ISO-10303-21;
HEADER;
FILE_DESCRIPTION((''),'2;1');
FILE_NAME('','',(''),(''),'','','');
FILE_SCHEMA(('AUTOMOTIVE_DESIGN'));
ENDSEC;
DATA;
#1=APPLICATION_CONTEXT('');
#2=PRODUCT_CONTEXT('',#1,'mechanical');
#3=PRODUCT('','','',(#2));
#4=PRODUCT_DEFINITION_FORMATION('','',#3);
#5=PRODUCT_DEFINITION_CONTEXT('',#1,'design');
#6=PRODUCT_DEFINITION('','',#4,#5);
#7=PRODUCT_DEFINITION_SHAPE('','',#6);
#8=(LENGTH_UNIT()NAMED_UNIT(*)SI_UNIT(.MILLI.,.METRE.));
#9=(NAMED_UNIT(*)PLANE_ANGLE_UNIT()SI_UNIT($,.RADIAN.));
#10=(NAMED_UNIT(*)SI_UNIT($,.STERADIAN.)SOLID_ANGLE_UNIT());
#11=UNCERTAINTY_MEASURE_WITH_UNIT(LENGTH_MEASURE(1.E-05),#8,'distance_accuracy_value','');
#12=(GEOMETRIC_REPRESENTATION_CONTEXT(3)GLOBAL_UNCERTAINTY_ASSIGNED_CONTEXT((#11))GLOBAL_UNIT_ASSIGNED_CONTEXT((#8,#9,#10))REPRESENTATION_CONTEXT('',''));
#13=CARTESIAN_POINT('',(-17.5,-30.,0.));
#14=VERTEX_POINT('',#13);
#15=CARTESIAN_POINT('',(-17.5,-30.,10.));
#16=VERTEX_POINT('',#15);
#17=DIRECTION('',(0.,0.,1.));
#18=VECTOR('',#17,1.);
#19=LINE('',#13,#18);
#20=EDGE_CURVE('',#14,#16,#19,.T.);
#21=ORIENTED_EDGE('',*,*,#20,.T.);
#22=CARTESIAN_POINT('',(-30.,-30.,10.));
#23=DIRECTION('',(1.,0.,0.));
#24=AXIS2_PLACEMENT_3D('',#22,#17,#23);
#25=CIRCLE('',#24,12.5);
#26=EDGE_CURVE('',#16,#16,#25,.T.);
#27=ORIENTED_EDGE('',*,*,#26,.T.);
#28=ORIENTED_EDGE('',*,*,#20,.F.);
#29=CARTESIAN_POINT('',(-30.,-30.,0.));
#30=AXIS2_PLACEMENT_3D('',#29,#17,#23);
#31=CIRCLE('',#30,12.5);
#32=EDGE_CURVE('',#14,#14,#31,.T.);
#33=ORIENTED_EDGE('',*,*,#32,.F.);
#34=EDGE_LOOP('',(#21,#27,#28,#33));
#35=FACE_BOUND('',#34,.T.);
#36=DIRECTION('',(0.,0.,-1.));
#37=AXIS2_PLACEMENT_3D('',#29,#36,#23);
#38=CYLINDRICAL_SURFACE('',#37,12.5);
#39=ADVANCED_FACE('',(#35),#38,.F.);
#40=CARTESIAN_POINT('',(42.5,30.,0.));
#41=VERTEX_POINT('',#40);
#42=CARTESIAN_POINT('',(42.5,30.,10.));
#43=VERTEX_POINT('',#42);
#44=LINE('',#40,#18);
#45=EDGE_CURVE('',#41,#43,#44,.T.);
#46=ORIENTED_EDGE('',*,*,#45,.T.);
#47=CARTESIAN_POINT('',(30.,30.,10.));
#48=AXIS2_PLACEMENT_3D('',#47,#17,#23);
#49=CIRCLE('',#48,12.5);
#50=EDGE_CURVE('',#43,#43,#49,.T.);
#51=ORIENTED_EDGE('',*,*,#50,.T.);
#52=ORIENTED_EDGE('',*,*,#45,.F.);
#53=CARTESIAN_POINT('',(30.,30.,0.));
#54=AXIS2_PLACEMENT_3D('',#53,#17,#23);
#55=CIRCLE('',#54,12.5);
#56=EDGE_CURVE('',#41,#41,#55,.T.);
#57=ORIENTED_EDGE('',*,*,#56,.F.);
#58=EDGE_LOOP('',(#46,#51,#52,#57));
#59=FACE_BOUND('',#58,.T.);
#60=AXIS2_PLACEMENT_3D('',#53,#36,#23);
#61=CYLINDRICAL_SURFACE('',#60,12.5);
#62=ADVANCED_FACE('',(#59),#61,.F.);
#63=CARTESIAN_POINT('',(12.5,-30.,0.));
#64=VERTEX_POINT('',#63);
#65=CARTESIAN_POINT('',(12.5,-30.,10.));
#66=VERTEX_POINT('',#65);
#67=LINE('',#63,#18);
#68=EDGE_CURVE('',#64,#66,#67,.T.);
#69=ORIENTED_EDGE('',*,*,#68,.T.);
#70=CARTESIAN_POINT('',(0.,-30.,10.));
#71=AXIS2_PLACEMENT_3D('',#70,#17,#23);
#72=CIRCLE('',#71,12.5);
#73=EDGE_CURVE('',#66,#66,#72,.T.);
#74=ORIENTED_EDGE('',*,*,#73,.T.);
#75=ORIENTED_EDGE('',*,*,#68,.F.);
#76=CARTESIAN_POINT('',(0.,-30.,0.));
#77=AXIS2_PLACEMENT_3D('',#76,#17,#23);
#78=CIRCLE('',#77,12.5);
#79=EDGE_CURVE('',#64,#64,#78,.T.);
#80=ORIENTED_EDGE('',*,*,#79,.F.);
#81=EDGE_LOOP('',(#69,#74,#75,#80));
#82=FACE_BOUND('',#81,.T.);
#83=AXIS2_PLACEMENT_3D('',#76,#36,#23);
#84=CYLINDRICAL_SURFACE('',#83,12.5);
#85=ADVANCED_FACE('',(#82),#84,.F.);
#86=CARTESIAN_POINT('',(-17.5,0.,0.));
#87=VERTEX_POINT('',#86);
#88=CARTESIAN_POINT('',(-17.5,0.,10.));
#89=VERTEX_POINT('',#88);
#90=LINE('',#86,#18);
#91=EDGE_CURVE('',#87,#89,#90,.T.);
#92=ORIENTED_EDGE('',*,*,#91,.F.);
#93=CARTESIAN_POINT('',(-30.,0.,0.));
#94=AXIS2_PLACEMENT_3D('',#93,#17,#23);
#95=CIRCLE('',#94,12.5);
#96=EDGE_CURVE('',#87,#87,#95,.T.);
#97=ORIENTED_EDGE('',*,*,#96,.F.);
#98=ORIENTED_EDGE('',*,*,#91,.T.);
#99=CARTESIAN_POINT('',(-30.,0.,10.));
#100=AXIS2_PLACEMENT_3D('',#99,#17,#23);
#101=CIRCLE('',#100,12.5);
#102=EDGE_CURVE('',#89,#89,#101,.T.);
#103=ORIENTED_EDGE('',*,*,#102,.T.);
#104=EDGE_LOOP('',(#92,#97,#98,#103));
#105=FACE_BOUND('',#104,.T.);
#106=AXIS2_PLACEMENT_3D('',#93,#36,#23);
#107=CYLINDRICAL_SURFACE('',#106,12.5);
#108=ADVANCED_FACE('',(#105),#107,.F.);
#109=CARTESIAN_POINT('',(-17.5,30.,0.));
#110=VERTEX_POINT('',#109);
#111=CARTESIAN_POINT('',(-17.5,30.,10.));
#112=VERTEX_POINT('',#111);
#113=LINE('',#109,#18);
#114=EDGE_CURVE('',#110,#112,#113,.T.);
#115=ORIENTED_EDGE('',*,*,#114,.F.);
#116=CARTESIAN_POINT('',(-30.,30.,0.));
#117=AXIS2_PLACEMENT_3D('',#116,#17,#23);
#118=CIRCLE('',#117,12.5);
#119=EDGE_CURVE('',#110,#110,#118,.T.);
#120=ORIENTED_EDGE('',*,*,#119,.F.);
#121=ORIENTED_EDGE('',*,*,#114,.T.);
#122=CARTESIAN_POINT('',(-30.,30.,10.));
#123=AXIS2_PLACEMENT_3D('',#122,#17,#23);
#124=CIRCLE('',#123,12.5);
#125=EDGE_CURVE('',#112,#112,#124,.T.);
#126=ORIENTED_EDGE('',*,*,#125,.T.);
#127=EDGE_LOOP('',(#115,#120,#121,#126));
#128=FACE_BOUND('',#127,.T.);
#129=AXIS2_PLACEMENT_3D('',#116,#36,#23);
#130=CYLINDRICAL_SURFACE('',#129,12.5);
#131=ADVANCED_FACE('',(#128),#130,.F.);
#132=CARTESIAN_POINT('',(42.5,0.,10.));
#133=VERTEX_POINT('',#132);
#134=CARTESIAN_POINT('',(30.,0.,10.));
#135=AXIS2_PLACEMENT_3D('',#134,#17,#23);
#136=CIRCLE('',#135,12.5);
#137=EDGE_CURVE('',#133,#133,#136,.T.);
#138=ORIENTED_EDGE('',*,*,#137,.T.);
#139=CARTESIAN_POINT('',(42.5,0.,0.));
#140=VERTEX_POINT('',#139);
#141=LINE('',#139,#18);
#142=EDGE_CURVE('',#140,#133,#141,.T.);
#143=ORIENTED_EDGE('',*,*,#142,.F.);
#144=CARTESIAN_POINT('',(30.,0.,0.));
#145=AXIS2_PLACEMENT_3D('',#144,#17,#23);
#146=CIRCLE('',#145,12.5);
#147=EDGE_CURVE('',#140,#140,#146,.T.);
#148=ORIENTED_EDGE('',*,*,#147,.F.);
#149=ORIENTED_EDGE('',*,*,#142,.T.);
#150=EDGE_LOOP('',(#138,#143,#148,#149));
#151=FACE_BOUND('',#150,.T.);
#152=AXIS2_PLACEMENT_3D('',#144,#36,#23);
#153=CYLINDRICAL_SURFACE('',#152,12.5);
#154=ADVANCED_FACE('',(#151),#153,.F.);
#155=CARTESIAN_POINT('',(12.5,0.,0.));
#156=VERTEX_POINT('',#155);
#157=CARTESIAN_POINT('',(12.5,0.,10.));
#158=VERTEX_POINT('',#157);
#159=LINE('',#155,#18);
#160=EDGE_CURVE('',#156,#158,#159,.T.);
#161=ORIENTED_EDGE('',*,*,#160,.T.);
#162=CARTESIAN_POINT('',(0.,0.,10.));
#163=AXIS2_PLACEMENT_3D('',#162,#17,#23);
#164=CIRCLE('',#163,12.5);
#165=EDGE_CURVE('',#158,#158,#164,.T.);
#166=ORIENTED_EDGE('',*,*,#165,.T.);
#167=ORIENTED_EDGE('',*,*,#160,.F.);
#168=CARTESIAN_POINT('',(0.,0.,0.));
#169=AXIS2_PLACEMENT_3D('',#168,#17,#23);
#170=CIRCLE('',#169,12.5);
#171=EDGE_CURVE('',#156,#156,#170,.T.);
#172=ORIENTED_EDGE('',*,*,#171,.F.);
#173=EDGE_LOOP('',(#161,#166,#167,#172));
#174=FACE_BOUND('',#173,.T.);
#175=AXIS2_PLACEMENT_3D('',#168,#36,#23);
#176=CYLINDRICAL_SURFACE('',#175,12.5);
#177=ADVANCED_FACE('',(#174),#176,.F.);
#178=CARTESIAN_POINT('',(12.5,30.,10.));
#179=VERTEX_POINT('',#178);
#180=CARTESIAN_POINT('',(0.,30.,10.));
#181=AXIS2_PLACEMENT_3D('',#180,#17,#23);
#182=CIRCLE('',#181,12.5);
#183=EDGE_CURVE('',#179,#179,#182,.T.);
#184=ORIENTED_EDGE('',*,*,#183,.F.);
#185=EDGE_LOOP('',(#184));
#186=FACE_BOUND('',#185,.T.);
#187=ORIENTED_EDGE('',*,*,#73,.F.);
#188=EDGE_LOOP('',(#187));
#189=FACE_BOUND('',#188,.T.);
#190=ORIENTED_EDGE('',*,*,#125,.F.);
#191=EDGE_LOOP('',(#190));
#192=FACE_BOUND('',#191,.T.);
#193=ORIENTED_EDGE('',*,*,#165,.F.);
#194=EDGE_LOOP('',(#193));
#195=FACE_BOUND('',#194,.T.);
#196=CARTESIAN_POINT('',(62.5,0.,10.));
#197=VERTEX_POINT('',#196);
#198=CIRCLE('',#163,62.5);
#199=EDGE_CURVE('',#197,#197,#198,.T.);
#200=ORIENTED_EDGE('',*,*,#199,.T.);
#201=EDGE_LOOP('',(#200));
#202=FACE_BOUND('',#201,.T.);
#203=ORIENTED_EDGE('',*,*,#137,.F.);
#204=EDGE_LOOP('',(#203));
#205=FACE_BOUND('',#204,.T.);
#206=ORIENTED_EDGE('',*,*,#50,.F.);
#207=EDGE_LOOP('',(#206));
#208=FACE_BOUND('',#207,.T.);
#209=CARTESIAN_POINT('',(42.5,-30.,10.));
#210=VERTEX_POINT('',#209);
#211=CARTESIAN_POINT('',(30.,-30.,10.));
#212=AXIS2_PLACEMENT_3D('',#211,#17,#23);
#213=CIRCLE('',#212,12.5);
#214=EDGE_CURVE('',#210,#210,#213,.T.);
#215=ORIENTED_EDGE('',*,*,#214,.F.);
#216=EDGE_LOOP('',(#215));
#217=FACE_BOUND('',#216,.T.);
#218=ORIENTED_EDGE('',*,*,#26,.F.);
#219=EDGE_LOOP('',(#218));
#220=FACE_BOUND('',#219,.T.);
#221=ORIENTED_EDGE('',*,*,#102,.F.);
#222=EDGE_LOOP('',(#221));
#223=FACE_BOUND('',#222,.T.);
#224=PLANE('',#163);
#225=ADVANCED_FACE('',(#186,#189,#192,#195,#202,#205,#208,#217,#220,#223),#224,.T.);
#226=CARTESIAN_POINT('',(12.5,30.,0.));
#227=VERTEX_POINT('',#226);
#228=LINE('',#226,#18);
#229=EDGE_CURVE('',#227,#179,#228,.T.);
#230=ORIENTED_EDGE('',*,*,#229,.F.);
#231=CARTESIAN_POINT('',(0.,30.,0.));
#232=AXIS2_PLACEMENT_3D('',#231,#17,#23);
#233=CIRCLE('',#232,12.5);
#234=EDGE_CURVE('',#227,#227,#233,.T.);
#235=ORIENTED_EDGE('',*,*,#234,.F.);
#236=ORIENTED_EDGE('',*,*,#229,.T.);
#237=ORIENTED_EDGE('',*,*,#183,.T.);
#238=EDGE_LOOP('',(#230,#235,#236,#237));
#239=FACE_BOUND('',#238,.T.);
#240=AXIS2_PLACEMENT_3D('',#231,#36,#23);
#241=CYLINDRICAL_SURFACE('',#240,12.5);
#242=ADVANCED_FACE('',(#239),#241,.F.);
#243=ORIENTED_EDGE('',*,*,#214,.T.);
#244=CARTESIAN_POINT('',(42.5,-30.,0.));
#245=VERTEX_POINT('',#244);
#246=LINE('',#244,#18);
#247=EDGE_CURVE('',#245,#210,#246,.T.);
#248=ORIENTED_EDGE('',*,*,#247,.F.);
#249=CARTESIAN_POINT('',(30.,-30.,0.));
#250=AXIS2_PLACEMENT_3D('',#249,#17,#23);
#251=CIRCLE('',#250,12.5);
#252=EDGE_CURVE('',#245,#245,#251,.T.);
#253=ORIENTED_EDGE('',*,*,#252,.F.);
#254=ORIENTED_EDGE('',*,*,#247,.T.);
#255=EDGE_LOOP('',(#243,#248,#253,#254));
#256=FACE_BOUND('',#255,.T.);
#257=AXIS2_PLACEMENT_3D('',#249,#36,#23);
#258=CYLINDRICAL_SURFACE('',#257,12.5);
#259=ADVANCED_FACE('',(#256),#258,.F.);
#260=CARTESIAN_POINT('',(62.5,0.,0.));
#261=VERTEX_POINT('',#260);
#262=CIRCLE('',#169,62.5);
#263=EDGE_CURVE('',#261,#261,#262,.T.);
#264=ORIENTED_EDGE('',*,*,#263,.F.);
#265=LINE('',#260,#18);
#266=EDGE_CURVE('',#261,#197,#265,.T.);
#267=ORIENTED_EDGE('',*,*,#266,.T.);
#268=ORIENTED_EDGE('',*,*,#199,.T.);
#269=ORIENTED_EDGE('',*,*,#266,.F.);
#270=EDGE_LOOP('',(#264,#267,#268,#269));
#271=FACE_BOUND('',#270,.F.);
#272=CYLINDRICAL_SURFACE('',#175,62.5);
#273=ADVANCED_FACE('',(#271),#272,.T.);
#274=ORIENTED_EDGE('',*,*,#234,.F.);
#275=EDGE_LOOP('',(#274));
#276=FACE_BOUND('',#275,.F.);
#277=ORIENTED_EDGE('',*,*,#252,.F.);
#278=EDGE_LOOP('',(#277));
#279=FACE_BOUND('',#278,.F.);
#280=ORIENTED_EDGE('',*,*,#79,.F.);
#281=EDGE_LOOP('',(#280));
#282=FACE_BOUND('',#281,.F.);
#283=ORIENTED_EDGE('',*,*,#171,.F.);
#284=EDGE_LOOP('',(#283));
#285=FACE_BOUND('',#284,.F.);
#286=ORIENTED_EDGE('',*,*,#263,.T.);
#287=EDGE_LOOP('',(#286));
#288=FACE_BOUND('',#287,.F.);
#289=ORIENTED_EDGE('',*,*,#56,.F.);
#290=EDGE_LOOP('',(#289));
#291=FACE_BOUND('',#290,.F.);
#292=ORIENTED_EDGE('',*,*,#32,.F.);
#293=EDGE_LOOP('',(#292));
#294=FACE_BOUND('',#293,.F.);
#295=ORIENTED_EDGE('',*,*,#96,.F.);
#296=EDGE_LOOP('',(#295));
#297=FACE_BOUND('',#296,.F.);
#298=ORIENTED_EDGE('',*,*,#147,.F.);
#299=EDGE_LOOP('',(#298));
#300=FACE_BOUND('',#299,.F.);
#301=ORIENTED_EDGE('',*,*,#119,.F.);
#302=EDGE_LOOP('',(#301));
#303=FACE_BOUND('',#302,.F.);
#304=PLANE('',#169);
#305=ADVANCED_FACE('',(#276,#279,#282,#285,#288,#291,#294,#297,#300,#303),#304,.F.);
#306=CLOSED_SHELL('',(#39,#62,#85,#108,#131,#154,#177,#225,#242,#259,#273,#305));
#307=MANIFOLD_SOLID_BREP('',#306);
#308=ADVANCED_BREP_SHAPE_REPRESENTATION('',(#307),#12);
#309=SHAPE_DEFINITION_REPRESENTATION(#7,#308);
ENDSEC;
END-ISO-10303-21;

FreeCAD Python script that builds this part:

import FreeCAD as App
import Part
import Sketcher
from FreeCAD import Vector
Q = App.Units.Quantity

doc = App.newDocument("Part")
params = doc.addObject("Spreadsheet::Sheet", "Params")
for row, (alias, value) in enumerate([
    ("sketch1_diameter", "125 mm"),
    ("sketch1_diameter2", "25 mm"),
    ("pad1_length", "10 mm"),
], start=1):
    params.set(f"A{row}", alias)
    params.set(f"B{row}", "=" + value)
    params.setAlias(f"B{row}", alias)

body = doc.addObject("PartDesign::Body", "Body")

# Sketch on XY plane
sketch1 = body.newObject("Sketcher::SketchObject", "Sketch")
sketch1.AttachmentSupport = (doc.getObject("XY_Plane"), [""])
sketch1.MapMode = "FlatFace"
sketch1.addGeometry(Part.Circle(Vector(0, 0, 0), Vector(0, 0, 1), 62), False)
sketch1.addGeometry(Part.Circle(Vector(-30, -30, 0), Vector(0, 0, 1), 12), False)
sketch1.addGeometry(Part.Circle(Vector(0, -30, 0), Vector(0, 0, 1), 12), False)
sketch1.addGeometry(Part.Circle(Vector(30, -30, 0), Vector(0, 0, 1), 12), False)
sketch1.addGeometry(Part.Circle(Vector(-30, 0, 0), Vector(0, 0, 1), 12), False)
sketch1.addGeometry(Part.Circle(Vector(-30, 30, 0), Vector(0, 0, 1), 12), False)
sketch1.addGeometry(Part.Circle(Vector(0, 0, 0), Vector(0, 0, 1), 12), False)
sketch1.addGeometry(Part.Circle(Vector(30, 0, 0), Vector(0, 0, 1), 12), False)
sketch1.addGeometry(Part.Circle(Vector(0, 30, 0), Vector(0, 0, 1), 12), False)
sketch1.addGeometry(Part.Circle(Vector(30, 30, 0), Vector(0, 0, 1), 12), False)
sketch1.addConstraint(Sketcher.Constraint("Coincident", 0, 3, -1, 1))
sketch1.addConstraint(Sketcher.Constraint("Coincident", 6, 3, -1, 1))
sketch1.addConstraint(Sketcher.Constraint("Equal", 1, 2))
sketch1.addConstraint(Sketcher.Constraint("Equal", 2, 3))
sketch1.addConstraint(Sketcher.Constraint("Equal", 3, 4))
sketch1.addConstraint(Sketcher.Constraint("Equal", 4, 5))
sketch1.addConstraint(Sketcher.Constraint("Equal", 5, 6))
sketch1.addConstraint(Sketcher.Constraint("Equal", 6, 7))
sketch1.addConstraint(Sketcher.Constraint("Equal", 7, 8))
sketch1.addConstraint(Sketcher.Constraint("Equal", 8, 9))
sketch1.addConstraint(Sketcher.Constraint("Symmetric", 3, 3, 5, 3, -1, 1))
sketch1.addConstraint(Sketcher.Constraint("Symmetric", 4, 3, 7, 3, -1, 1))
sketch1.addConstraint(Sketcher.Constraint("Symmetric", 2, 3, 8, 3, -1, 1))
sketch1.addConstraint(Sketcher.Constraint("Symmetric", 1, 3, 9, 3, -1, 1))
sketch1.addConstraint(Sketcher.Constraint("Symmetric", 1, 3, 3, 3, -2))
sketch1.addConstraint(Sketcher.Constraint("PointOnObject", 2, 3, -2))
sketch1.addConstraint(Sketcher.Constraint("PointOnObject", 4, 3, -1))
sketch1.addConstraint(Sketcher.Constraint("Horizontal", 1, 3, 2, 3))
sketch1.addConstraint(Sketcher.Constraint("Vertical", 1, 3, 4, 3))
sketch1.addConstraint(Sketcher.Constraint("Diameter", 0, Q("125 mm")))
sketch1.addConstraint(Sketcher.Constraint("Diameter", 1, Q("25 mm")))
sketch1.addConstraint(Sketcher.Constraint("DistanceX", 1, 3, -1, 1, Q("30 mm")))
sketch1.addConstraint(Sketcher.Constraint("DistanceY", 1, 3, -1, 1, Q("30 mm")))
sketch1.setExpression("Constraints[19]", "Params.sketch1_diameter")
sketch1.setExpression("Constraints[20]", "Params.sketch1_diameter2")
pad1 = body.newObject("PartDesign::Pad", "Pad")
pad1.Profile = sketch1
pad1.setExpression("Length", "Params.pad1_length")

doc.recompute()
